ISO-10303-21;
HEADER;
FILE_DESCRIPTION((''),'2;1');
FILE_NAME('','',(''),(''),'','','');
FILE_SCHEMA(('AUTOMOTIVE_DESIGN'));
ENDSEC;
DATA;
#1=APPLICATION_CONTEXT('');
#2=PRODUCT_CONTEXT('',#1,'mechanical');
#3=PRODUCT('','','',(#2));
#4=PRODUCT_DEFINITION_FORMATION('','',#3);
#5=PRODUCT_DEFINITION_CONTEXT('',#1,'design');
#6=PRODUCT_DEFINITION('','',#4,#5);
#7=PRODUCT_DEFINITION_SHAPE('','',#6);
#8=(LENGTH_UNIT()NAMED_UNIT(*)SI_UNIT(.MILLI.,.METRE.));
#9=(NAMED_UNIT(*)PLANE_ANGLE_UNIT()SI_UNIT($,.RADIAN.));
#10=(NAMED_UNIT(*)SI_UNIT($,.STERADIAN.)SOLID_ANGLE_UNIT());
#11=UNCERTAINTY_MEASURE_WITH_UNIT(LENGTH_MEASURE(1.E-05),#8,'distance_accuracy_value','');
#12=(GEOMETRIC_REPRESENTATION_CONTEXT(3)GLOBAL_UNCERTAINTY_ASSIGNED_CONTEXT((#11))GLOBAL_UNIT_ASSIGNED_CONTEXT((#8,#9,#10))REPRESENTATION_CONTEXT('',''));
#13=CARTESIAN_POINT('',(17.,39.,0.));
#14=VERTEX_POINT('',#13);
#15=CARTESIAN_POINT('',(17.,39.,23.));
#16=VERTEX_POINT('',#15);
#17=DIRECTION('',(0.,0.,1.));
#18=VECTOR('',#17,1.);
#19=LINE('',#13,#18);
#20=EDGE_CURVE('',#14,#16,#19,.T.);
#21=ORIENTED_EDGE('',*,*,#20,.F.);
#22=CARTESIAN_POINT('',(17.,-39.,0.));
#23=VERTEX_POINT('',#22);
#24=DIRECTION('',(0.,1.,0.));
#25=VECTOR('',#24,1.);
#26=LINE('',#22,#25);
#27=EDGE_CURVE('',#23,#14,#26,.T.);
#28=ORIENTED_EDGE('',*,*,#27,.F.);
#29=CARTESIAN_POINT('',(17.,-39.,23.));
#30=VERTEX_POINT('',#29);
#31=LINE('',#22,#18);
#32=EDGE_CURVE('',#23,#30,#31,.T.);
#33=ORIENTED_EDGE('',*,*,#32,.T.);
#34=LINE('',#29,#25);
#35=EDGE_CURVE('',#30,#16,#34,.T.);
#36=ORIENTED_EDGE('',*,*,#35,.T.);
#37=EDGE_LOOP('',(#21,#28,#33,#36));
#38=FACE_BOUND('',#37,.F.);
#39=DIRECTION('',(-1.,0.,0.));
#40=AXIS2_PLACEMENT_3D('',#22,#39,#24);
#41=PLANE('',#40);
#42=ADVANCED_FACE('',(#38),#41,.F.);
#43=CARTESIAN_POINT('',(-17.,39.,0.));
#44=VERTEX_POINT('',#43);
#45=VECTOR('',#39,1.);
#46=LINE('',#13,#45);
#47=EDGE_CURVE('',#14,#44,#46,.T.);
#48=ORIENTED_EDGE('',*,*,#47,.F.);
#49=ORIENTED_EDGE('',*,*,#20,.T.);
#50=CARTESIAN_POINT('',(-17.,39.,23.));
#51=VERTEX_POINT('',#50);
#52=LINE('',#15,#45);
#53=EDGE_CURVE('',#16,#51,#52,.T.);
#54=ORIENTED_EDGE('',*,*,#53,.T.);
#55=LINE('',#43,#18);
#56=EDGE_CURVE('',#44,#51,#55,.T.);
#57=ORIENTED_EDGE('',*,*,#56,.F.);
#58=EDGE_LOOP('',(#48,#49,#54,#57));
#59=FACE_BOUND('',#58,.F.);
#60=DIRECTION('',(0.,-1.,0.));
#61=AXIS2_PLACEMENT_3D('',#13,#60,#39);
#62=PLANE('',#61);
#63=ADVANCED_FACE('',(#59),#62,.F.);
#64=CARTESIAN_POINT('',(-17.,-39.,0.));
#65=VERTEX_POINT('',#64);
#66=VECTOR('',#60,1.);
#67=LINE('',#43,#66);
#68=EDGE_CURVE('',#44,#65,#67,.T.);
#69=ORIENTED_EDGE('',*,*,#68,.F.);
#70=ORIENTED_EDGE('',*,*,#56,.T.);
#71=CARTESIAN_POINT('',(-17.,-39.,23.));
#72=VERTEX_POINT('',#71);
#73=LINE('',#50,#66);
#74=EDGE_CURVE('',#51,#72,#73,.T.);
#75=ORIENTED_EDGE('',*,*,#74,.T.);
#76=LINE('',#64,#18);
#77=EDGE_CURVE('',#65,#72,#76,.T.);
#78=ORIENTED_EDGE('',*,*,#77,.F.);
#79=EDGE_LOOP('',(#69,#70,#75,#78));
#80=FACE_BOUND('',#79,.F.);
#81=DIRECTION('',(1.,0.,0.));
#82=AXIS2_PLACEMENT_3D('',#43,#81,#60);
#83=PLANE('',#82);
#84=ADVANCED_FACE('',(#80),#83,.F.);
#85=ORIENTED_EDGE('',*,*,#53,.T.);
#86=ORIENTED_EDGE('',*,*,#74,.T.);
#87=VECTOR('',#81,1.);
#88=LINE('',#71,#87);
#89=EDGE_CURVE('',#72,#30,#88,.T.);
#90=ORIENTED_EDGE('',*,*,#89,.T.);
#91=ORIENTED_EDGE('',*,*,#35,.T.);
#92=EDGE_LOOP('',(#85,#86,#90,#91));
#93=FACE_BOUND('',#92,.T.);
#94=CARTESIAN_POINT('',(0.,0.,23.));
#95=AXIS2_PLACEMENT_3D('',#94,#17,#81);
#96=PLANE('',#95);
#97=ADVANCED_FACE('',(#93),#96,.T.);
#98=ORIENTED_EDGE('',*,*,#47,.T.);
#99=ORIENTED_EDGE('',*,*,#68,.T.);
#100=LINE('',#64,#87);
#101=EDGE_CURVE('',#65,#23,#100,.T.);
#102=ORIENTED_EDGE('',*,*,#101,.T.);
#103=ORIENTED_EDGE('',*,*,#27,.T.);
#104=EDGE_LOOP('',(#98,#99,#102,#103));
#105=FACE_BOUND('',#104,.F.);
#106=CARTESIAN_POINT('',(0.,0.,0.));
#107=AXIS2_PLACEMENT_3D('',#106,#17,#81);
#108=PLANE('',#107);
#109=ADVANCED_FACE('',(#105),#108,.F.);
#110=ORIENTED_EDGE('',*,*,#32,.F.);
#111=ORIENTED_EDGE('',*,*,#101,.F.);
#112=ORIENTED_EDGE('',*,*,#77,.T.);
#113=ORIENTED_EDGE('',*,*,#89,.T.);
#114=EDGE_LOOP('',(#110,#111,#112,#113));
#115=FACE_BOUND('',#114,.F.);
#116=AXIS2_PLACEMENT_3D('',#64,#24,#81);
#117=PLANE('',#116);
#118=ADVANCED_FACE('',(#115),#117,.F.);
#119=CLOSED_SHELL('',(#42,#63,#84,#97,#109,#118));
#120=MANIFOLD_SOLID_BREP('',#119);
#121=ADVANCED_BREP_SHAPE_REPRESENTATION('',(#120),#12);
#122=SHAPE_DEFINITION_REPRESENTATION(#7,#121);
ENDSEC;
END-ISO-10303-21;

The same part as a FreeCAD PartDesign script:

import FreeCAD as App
import Part
import Sketcher

V = App.Vector

doc = App.newDocument("Part")
params = doc.addObject("Spreadsheet::Sheet", "Params")
for row, (alias, value) in enumerate([
    ("sketch1_width", "34 mm"),
    ("sketch1_height", "78 mm"),
    ("pad1_length", "23 mm"),
], start=1):
    params.set(f"A{row}", alias)
    params.set(f"B{row}", "=" + value)
    params.setAlias(f"B{row}", alias)

body = doc.addObject("PartDesign::Body", "Body")

# Sketch on XY plane
sketch1 = body.newObject("Sketcher::SketchObject", "Sketch")
sketch1.AttachmentSupport = (doc.getObject("XY_Plane"), [""])
sketch1.MapMode = "FlatFace"
sketch1.addGeometry([
    Part.LineSegment(V(17, -39, 0), V(17, 39, 0)),
    Part.LineSegment(V(17, 39, 0), V(-17, 39, 0)),
    Part.LineSegment(V(-17, 39, 0), V(-17, -39, 0)),
    Part.LineSegment(V(-17, -39, 0), V(17, -39, 0)),
], False)
sketch1.addConstraint([
    Sketcher.Constraint("Coincident", 0, 2, 1, 1),
    Sketcher.Constraint("Coincident", 1, 2, 2, 1),
    Sketcher.Constraint("Coincident", 2, 2, 3, 1),
    Sketcher.Constraint("Coincident", 3, 2, 0, 1),
    Sketcher.Constraint("Vertical", 0),
    Sketcher.Constraint("Horizontal", 1),
    Sketcher.Constraint("Vertical", 2),
    Sketcher.Constraint("Horizontal", 3),
    Sketcher.Constraint("Symmetric", 0, 2, 2, 2, -1, 1),
    Sketcher.Constraint("DistanceX", 1, 2, 1, 1, 34.0),
    Sketcher.Constraint("DistanceY", 0, 1, 0, 2, 78.0),
])
sketch1.setExpression("Constraints[9]", "Params.sketch1_width")
sketch1.setExpression("Constraints[10]", "Params.sketch1_height")
pad1 = body.newObject("PartDesign::Pad", "Pad")
pad1.Profile = sketch1
pad1.setExpression("Length", "Params.pad1_length")

doc.recompute()
